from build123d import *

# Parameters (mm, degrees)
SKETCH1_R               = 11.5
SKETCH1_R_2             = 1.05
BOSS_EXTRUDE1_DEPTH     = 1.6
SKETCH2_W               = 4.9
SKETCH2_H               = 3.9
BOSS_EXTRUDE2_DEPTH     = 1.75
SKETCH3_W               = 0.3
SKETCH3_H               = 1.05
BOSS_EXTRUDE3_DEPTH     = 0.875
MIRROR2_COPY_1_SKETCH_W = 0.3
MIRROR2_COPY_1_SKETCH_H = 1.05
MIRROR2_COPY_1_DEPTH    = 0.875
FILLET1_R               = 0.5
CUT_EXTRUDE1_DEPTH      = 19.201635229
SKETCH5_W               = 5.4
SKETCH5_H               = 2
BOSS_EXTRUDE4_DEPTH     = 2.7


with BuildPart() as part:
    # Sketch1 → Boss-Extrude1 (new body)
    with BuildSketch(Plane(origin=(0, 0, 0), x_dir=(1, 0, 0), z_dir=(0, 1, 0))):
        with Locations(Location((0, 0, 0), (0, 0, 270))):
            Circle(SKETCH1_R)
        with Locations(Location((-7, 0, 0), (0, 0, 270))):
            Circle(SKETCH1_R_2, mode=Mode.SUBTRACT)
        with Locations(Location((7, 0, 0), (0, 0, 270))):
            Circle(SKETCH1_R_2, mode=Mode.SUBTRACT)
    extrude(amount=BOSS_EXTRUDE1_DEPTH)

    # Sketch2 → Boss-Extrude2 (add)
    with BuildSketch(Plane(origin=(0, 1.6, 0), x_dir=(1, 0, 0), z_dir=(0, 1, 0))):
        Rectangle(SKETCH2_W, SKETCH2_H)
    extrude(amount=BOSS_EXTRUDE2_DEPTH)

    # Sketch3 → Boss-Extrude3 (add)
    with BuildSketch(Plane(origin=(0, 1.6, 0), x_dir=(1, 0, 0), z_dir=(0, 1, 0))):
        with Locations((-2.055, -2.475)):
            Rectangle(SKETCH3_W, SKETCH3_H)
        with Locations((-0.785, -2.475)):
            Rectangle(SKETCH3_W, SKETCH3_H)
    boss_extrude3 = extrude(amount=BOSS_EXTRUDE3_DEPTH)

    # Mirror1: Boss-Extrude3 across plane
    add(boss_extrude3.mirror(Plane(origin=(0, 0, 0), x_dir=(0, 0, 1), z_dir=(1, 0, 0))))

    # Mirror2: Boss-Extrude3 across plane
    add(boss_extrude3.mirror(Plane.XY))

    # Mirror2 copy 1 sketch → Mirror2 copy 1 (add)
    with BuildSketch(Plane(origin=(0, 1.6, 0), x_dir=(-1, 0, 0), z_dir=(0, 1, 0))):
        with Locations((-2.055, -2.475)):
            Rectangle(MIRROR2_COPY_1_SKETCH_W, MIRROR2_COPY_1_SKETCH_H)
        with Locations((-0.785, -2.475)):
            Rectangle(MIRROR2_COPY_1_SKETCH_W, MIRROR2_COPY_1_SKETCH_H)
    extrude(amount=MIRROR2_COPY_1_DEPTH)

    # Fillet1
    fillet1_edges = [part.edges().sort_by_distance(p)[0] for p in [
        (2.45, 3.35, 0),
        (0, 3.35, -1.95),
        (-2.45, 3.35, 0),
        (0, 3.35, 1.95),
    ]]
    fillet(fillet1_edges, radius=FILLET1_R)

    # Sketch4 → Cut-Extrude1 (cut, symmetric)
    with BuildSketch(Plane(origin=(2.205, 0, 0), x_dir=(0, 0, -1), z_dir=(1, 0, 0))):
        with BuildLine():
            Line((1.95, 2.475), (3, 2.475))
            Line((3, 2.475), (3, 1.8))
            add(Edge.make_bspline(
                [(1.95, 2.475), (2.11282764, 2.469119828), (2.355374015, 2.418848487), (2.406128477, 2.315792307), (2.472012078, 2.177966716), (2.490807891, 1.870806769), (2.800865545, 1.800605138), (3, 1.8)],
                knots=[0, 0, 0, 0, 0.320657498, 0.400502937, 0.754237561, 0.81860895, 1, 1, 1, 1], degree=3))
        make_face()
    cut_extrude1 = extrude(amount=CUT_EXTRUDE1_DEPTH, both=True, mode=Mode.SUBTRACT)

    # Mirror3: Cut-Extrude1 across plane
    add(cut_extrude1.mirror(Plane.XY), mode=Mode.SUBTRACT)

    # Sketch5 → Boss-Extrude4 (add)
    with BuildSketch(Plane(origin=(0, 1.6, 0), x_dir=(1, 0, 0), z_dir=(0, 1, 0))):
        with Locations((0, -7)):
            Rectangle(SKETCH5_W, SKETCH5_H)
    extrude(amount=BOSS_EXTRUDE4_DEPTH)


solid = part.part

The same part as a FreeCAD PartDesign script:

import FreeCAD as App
import Part
import Sketcher
from FreeCAD import Vector


def edges_at(feature, points):
    """Names of the edges that pass closest to the given points."""
    edges = feature.Shape.Edges
    near = lambda p: min(range(len(edges)), key=lambda i: edges[i].distToShape(Part.Vertex(*p))[0])
    return sorted({f"Edge{near(p) + 1}" for p in points})

doc = App.newDocument("Part")
body = doc.addObject("PartDesign::Body", "Body")

sketch1 = body.newObject("Sketcher::SketchObject", "Sketch")
sketch1.AttachmentSupport = (doc.getObject("XZ_Plane"), [""])
sketch1.MapMode = "FlatFace"
sketch1.addGeometry(Part.Circle(Vector(0, 0, 0), Vector(0, 0, 1), 11.5), False)
sketch1.addGeometry(Part.Circle(Vector(-7, 0, 0), Vector(0, 0, 1), 1.1), False)
sketch1.addGeometry(Part.Circle(Vector(7, 0, 0), Vector(0, 0, 1), 1.1), False)
sketch1.addConstraint(Sketcher.Constraint("Coincident", 0, 3, -1, 1))
sketch1.addConstraint(Sketcher.Constraint("Equal", 1, 2))
sketch1.addConstraint(Sketcher.Constraint("Symmetric", 1, 3, 2, 3, -1, 1))
sketch1.addConstraint(Sketcher.Constraint("PointOnObject", 1, 3, -1))
sketch1.addConstraint(Sketcher.Constraint("Diameter", 0, 23.0))
sketch1.addConstraint(Sketcher.Constraint("Diameter", 1, 2.1))
sketch1.addConstraint(Sketcher.Constraint("DistanceX", 1, 3, -1, 1, 7.0))
pad1 = body.newObject("PartDesign::Pad", "Pad")
pad1.Profile = sketch1
pad1.Length = 1.6
pad1.Reversed = True

sketch2 = body.newObject("Sketcher::SketchObject", "Sketch001")
sketch2.AttachmentSupport = (doc.getObject("XZ_Plane"), [""])
sketch2.MapMode = "FlatFace"
sketch2.AttachmentOffset = App.Placement(Vector(0, 0, -1.6), App.Rotation())
sketch2.addGeometry(Part.LineSegment(Vector(-2.5, -1.9, 0), Vector(-2.5, 1.9, 0)), False)
sketch2.addGeometry(Part.LineSegment(Vector(-2.5, 1.9, 0), Vector(2.5, 1.9, 0)), False)
sketch2.addGeometry(Part.LineSegment(Vector(2.5, 1.9, 0), Vector(2.5, -1.9, 0)), False)
sketch2.addGeometry(Part.LineSegment(Vector(2.5, -1.9, 0), Vector(-2.5, -1.9, 0)), False)
sketch2.addConstraint(Sketcher.Constraint("Coincident", 0, 2, 1, 1))
sketch2.addConstraint(Sketcher.Constraint("Coincident", 1, 2, 2, 1))
sketch2.addConstraint(Sketcher.Constraint("Coincident", 2, 2, 3, 1))
sketch2.addConstraint(Sketcher.Constraint("Coincident", 3, 2, 0, 1))
sketch2.addConstraint(Sketcher.Constraint("Vertical", 0))
sketch2.addConstraint(Sketcher.Constraint("Horizontal", 1))
sketch2.addConstraint(Sketcher.Constraint("Vertical", 2))
sketch2.addConstraint(Sketcher.Constraint("Horizontal", 3))
sketch2.addConstraint(Sketcher.Constraint("Symmetric", 0, 2, 2, 2, -1, 1))
sketch2.addConstraint(Sketcher.Constraint("DistanceX", 1, 1, 1, 2, 4.9))
sketch2.addConstraint(Sketcher.Constraint("DistanceY", 0, 1, 0, 2, 3.9))
pad2 = body.newObject("PartDesign::Pad", "Pad001")
pad2.Profile = sketch2
pad2.Length = 1.75
pad2.Reversed = True

sketch3 = body.newObject("Sketcher::SketchObject", "Sketch002")
sketch3.AttachmentSupport = (doc.getObject("XZ_Plane"), [""])
sketch3.MapMode = "FlatFace"
sketch3.AttachmentOffset = App.Placement(Vector(0, 0, -1.6), App.Rotation())
sketch3.addGeometry(Part.LineSegment(Vector(-2.21, 1.95, 0), Vector(-2.21, 3, 0)), False)
sketch3.addGeometry(Part.LineSegment(Vector(-2.21, 3, 0), Vector(-1.91, 3, 0)), False)
sketch3.addGeometry(Part.LineSegment(Vector(-1.91, 3, 0), Vector(-1.91, 1.95, 0)), False)
sketch3.addGeometry(Part.LineSegment(Vector(-1.91, 1.95, 0), Vector(-2.21, 1.95, 0)), False)
sketch3.addGeometry(Part.LineSegment(Vector(-0.94, 1.95, 0), Vector(-0.94, 3, 0)), False)
sketch3.addGeometry(Part.LineSegment(Vector(-0.94, 3, 0), Vector(-0.64, 3, 0)), False)
sketch3.addGeometry(Part.LineSegment(Vector(-0.64, 3, 0), Vector(-0.64, 1.95, 0)), False)
sketch3.addGeometry(Part.LineSegment(Vector(-0.64, 1.95, 0), Vector(-0.94, 1.95, 0)), False)
sketch3.addConstraint(Sketcher.Constraint("Coincident", 0, 2, 1, 1))
sketch3.addConstraint(Sketcher.Constraint("Coincident", 1, 2, 2, 1))
sketch3.addConstraint(Sketcher.Constraint("Coincident", 2, 2, 3, 1))
sketch3.addConstraint(Sketcher.Constraint("Coincident", 3, 2, 0, 1))
sketch3.addConstraint(Sketcher.Constraint("Coincident", 4, 2, 5, 1))
sketch3.addConstraint(Sketcher.Constraint("Coincident", 5, 2, 6, 1))
sketch3.addConstraint(Sketcher.Constraint("Coincident", 6, 2, 7, 1))
sketch3.addConstraint(Sketcher.Constraint("Coincident", 7, 2, 4, 1))
sketch3.addConstraint(Sketcher.Constraint("Vertical", 0))
sketch3.addConstraint(Sketcher.Constraint("Horizontal", 1))
sketch3.addConstraint(Sketcher.Constraint("Vertical", 2))
sketch3.addConstraint(Sketcher.Constraint("Horizontal", 3))
sketch3.addConstraint(Sketcher.Constraint("Vertical", 4))
sketch3.addConstraint(Sketcher.Constraint("Horizontal", 5))
sketch3.addConstraint(Sketcher.Constraint("Vertical", 6))
sketch3.addConstraint(Sketcher.Constraint("Horizontal", 7))
sketch3.addConstraint(Sketcher.Constraint("Horizontal", 1, 2, 4, 2))
sketch3.addConstraint(Sketcher.Constraint("Horizontal", 3, 2, 6, 2))
sketch3.addConstraint(Sketcher.Constraint("Equal", 3, 5))
sketch3.addConstraint(Sketcher.Constraint("DistanceX", 1, 1, 1, 2, 0.3))
sketch3.addConstraint(Sketcher.Constraint("DistanceY", -1, 1, 0, 2, 3.0))
sketch3.addConstraint(Sketcher.Constraint("DistanceY", 0, 1, 0, 2, 1.05))
sketch3.addConstraint(Sketcher.Constraint("DistanceX", 1, 2, 4, 2, 0.97))
sketch3.addConstraint(Sketcher.Constraint("DistanceX", 0, 2, -1, 1, 2.205))
pad3 = body.newObject("PartDesign::Pad", "Pad002")
pad3.Profile = sketch3
pad3.Length = 0.875
pad3.Reversed = True
doc.recompute()

mirrored = body.newObject("PartDesign::Mirrored", "Mirrored")
mirrored.Originals = [pad3]
mirrored.MirrorPlane = (doc.getObject("YZ_Plane"), [""])
body.Tip = mirrored
doc.recompute()

mirrored2 = body.newObject("PartDesign::Mirrored", "Mirrored001")
mirrored2.Originals = [pad3]
mirrored2.MirrorPlane = (doc.getObject("XY_Plane"), [""])
body.Tip = mirrored2

sketch4 = body.newObject("Sketcher::SketchObject", "Sketch003")
sketch4.AttachmentSupport = (doc.getObject("XZ_Plane"), [""])
sketch4.MapMode = "FlatFace"
sketch4.AttachmentOffset = App.Placement(Vector(0, 0, -1.6), App.Rotation())
sketch4.addGeometry(Part.LineSegment(Vector(2.21, -1.95, 0), Vector(2.21, -3, 0)), False)
sketch4.addGeometry(Part.LineSegment(Vector(2.21, -3, 0), Vector(1.91, -3, 0)), False)
sketch4.addGeometry(Part.LineSegment(Vector(1.91, -3, 0), Vector(1.91, -1.95, 0)), False)
sketch4.addGeometry(Part.LineSegment(Vector(1.91, -1.95, 0), Vector(2.21, -1.95, 0)), False)
sketch4.addGeometry(Part.LineSegment(Vector(0.94, -1.95, 0), Vector(0.94, -3, 0)), False)
sketch4.addGeometry(Part.LineSegment(Vector(0.94, -3, 0), Vector(0.64, -3, 0)), False)
sketch4.addGeometry(Part.LineSegment(Vector(0.64, -3, 0), Vector(0.64, -1.95, 0)), False)
sketch4.addGeometry(Part.LineSegment(Vector(0.64, -1.95, 0), Vector(0.94, -1.95, 0)), False)
sketch4.addConstraint(Sketcher.Constraint("Coincident", 0, 2, 1, 1))
sketch4.addConstraint(Sketcher.Constraint("Coincident", 1, 2, 2, 1))
sketch4.addConstraint(Sketcher.Constraint("Coincident", 2, 2, 3, 1))
sketch4.addConstraint(Sketcher.Constraint("Coincident", 3, 2, 0, 1))
sketch4.addConstraint(Sketcher.Constraint("Coincident", 4, 2, 5, 1))
sketch4.addConstraint(Sketcher.Constraint("Coincident", 5, 2, 6, 1))
sketch4.addConstraint(Sketcher.Constraint("Coincident", 6, 2, 7, 1))
sketch4.addConstraint(Sketcher.Constraint("Coincident", 7, 2, 4, 1))
sketch4.addConstraint(Sketcher.Constraint("Vertical", 0))
sketch4.addConstraint(Sketcher.Constraint("Horizontal", 1))
sketch4.addConstraint(Sketcher.Constraint("Vertical", 2))
sketch4.addConstraint(Sketcher.Constraint("Horizontal", 3))
sketch4.addConstraint(Sketcher.Constraint("Vertical", 4))
sketch4.addConstraint(Sketcher.Constraint("Horizontal", 5))
sketch4.addConstraint(Sketcher.Constraint("Vertical", 6))
sketch4.addConstraint(Sketcher.Constraint("Horizontal", 7))
sketch4.addConstraint(Sketcher.Constraint("Horizontal", 1, 2, 4, 2))
sketch4.addConstraint(Sketcher.Constraint("Horizontal", 3, 2, 6, 2))
sketch4.addConstraint(Sketcher.Constraint("Equal", 3, 5))
sketch4.addConstraint(Sketcher.Constraint("DistanceX", 1, 2, 1, 1, 0.3))
sketch4.addConstraint(Sketcher.Constraint("DistanceY", 0, 2, -1, 1, 3.0))
sketch4.addConstraint(Sketcher.Constraint("DistanceY", 0, 2, 0, 1, 1.05))
sketch4.addConstraint(Sketcher.Constraint("DistanceX", 4, 2, 1, 2, 0.97))
sketch4.addConstraint(Sketcher.Constraint("DistanceX", -1, 1, 0, 2, 2.205))
pad4 = body.newObject("PartDesign::Pad", "Pad003")
pad4.Profile = sketch4
pad4.Length = 0.875
pad4.Reversed = True
doc.recompute()

fillet = body.newObject("PartDesign::Fillet", "Fillet")
fillet.Base = (pad4, edges_at(pad4, [
    (2.45, 3.35, 0),
    (0, 3.35, -1.95),
    (-2.45, 3.35, 0),
    (0, 3.35, 1.95),
]))
fillet.Radius = 0.5

sketch5 = body.newObject("Sketcher::SketchObject", "Sketch004")
sketch5.AttachmentSupport = (doc.getObject("YZ_Plane"), [""])
sketch5.MapMode = "FlatFace"
sketch5.AttachmentOffset = App.Placement(Vector(0, 0, 2.205), App.Rotation())
sketch5.addGeometry(Part.LineSegment(Vector(2.475, -3, 0), Vector(2.475, -1.95, 0)), False)
sketch5.addGeometry(Part.BSplineCurve([Vector(2.475, -1.95, 0), Vector(2.46912, -2.112828, 0), Vector(2.418848, -2.355374, 0), Vector(2.315792, -2.406128, 0), Vector(2.177967, -2.472012, 0), Vector(1.870807, -2.490808, 0), Vector(1.800605, -2.800866, 0), Vector(1.8, -3, 0)], [4, 1, 1, 1, 1, 4], [0, 0.320657498, 0.400502937, 0.754237561, 0.81860895, 1], False, 3, [1, 1, 1, 1, 1, 1, 1, 1], False), False)
sketch5.addGeometry(Part.LineSegment(Vector(1.8, -3, 0), Vector(2.475, -3, 0)), False)
sketch5.addConstraint(Sketcher.Constraint("Block", 1))
sketch5.addConstraint(Sketcher.Constraint("Coincident", 0, 2, 1, 1))
sketch5.addConstraint(Sketcher.Constraint("Coincident", 1, 2, 2, 1))
sketch5.addConstraint(Sketcher.Constraint("Coincident", 2, 2, 0, 1))
sketch5.addConstraint(Sketcher.Constraint("Vertical", 0))
sketch5.addConstraint(Sketcher.Constraint("Horizontal", 2))
pocket1 = body.newObject("PartDesign::Pocket", "Pocket")
pocket1.Profile = sketch5
pocket1.Length = 38.40327
pocket1.Midplane = True
doc.recompute()

mirrored3 = body.newObject("PartDesign::Mirrored", "Mirrored002")
mirrored3.Originals = [pocket1]
mirrored3.MirrorPlane = (doc.getObject("XY_Plane"), [""])
body.Tip = mirrored3

sketch6 = body.newObject("Sketcher::SketchObject", "Sketch005")
sketch6.AttachmentSupport = (doc.getObject("XZ_Plane"), [""])
sketch6.MapMode = "FlatFace"
sketch6.AttachmentOffset = App.Placement(Vector(0, 0, -1.6), App.Rotation())
sketch6.addGeometry(Part.LineSegment(Vector(-2.7, 6, 0), Vector(-2.7, 8, 0)), False)
sketch6.addGeometry(Part.LineSegment(Vector(-2.7, 8, 0), Vector(2.7, 8, 0)), False)
sketch6.addGeometry(Part.LineSegment(Vector(2.7, 8, 0), Vector(2.7, 6, 0)), False)
sketch6.addGeometry(Part.LineSegment(Vector(2.7, 6, 0), Vector(-2.7, 6, 0)), False)
sketch6.addConstraint(Sketcher.Constraint("Coincident", 0, 2, 1, 1))
sketch6.addConstraint(Sketcher.Constraint("Coincident", 1, 2, 2, 1))
sketch6.addConstraint(Sketcher.Constraint("Coincident", 2, 2, 3, 1))
sketch6.addConstraint(Sketcher.Constraint("Coincident", 3, 2, 0, 1))
sketch6.addConstraint(Sketcher.Constraint("Vertical", 0))
sketch6.addConstraint(Sketcher.Constraint("Horizontal", 1))
sketch6.addConstraint(Sketcher.Constraint("Vertical", 2))
sketch6.addConstraint(Sketcher.Constraint("Horizontal", 3))
sketch6.addConstraint(Sketcher.Constraint("DistanceY", 0, 1, 0, 2, 2.0))
sketch6.addConstraint(Sketcher.Constraint("DistanceX", 1, 1, 1, 2, 5.4))
sketch6.addConstraint(Sketcher.Constraint("DistanceY", -1, 1, 0, 2, 8.0))
sketch6.addConstraint(Sketcher.Constraint("DistanceX", 0, 2, -1, 1, 2.7))
pad5 = body.newObject("PartDesign::Pad", "Pad004")
pad5.Profile = sketch6
pad5.Length = 2.7
pad5.Reversed = True

doc.recompute()
